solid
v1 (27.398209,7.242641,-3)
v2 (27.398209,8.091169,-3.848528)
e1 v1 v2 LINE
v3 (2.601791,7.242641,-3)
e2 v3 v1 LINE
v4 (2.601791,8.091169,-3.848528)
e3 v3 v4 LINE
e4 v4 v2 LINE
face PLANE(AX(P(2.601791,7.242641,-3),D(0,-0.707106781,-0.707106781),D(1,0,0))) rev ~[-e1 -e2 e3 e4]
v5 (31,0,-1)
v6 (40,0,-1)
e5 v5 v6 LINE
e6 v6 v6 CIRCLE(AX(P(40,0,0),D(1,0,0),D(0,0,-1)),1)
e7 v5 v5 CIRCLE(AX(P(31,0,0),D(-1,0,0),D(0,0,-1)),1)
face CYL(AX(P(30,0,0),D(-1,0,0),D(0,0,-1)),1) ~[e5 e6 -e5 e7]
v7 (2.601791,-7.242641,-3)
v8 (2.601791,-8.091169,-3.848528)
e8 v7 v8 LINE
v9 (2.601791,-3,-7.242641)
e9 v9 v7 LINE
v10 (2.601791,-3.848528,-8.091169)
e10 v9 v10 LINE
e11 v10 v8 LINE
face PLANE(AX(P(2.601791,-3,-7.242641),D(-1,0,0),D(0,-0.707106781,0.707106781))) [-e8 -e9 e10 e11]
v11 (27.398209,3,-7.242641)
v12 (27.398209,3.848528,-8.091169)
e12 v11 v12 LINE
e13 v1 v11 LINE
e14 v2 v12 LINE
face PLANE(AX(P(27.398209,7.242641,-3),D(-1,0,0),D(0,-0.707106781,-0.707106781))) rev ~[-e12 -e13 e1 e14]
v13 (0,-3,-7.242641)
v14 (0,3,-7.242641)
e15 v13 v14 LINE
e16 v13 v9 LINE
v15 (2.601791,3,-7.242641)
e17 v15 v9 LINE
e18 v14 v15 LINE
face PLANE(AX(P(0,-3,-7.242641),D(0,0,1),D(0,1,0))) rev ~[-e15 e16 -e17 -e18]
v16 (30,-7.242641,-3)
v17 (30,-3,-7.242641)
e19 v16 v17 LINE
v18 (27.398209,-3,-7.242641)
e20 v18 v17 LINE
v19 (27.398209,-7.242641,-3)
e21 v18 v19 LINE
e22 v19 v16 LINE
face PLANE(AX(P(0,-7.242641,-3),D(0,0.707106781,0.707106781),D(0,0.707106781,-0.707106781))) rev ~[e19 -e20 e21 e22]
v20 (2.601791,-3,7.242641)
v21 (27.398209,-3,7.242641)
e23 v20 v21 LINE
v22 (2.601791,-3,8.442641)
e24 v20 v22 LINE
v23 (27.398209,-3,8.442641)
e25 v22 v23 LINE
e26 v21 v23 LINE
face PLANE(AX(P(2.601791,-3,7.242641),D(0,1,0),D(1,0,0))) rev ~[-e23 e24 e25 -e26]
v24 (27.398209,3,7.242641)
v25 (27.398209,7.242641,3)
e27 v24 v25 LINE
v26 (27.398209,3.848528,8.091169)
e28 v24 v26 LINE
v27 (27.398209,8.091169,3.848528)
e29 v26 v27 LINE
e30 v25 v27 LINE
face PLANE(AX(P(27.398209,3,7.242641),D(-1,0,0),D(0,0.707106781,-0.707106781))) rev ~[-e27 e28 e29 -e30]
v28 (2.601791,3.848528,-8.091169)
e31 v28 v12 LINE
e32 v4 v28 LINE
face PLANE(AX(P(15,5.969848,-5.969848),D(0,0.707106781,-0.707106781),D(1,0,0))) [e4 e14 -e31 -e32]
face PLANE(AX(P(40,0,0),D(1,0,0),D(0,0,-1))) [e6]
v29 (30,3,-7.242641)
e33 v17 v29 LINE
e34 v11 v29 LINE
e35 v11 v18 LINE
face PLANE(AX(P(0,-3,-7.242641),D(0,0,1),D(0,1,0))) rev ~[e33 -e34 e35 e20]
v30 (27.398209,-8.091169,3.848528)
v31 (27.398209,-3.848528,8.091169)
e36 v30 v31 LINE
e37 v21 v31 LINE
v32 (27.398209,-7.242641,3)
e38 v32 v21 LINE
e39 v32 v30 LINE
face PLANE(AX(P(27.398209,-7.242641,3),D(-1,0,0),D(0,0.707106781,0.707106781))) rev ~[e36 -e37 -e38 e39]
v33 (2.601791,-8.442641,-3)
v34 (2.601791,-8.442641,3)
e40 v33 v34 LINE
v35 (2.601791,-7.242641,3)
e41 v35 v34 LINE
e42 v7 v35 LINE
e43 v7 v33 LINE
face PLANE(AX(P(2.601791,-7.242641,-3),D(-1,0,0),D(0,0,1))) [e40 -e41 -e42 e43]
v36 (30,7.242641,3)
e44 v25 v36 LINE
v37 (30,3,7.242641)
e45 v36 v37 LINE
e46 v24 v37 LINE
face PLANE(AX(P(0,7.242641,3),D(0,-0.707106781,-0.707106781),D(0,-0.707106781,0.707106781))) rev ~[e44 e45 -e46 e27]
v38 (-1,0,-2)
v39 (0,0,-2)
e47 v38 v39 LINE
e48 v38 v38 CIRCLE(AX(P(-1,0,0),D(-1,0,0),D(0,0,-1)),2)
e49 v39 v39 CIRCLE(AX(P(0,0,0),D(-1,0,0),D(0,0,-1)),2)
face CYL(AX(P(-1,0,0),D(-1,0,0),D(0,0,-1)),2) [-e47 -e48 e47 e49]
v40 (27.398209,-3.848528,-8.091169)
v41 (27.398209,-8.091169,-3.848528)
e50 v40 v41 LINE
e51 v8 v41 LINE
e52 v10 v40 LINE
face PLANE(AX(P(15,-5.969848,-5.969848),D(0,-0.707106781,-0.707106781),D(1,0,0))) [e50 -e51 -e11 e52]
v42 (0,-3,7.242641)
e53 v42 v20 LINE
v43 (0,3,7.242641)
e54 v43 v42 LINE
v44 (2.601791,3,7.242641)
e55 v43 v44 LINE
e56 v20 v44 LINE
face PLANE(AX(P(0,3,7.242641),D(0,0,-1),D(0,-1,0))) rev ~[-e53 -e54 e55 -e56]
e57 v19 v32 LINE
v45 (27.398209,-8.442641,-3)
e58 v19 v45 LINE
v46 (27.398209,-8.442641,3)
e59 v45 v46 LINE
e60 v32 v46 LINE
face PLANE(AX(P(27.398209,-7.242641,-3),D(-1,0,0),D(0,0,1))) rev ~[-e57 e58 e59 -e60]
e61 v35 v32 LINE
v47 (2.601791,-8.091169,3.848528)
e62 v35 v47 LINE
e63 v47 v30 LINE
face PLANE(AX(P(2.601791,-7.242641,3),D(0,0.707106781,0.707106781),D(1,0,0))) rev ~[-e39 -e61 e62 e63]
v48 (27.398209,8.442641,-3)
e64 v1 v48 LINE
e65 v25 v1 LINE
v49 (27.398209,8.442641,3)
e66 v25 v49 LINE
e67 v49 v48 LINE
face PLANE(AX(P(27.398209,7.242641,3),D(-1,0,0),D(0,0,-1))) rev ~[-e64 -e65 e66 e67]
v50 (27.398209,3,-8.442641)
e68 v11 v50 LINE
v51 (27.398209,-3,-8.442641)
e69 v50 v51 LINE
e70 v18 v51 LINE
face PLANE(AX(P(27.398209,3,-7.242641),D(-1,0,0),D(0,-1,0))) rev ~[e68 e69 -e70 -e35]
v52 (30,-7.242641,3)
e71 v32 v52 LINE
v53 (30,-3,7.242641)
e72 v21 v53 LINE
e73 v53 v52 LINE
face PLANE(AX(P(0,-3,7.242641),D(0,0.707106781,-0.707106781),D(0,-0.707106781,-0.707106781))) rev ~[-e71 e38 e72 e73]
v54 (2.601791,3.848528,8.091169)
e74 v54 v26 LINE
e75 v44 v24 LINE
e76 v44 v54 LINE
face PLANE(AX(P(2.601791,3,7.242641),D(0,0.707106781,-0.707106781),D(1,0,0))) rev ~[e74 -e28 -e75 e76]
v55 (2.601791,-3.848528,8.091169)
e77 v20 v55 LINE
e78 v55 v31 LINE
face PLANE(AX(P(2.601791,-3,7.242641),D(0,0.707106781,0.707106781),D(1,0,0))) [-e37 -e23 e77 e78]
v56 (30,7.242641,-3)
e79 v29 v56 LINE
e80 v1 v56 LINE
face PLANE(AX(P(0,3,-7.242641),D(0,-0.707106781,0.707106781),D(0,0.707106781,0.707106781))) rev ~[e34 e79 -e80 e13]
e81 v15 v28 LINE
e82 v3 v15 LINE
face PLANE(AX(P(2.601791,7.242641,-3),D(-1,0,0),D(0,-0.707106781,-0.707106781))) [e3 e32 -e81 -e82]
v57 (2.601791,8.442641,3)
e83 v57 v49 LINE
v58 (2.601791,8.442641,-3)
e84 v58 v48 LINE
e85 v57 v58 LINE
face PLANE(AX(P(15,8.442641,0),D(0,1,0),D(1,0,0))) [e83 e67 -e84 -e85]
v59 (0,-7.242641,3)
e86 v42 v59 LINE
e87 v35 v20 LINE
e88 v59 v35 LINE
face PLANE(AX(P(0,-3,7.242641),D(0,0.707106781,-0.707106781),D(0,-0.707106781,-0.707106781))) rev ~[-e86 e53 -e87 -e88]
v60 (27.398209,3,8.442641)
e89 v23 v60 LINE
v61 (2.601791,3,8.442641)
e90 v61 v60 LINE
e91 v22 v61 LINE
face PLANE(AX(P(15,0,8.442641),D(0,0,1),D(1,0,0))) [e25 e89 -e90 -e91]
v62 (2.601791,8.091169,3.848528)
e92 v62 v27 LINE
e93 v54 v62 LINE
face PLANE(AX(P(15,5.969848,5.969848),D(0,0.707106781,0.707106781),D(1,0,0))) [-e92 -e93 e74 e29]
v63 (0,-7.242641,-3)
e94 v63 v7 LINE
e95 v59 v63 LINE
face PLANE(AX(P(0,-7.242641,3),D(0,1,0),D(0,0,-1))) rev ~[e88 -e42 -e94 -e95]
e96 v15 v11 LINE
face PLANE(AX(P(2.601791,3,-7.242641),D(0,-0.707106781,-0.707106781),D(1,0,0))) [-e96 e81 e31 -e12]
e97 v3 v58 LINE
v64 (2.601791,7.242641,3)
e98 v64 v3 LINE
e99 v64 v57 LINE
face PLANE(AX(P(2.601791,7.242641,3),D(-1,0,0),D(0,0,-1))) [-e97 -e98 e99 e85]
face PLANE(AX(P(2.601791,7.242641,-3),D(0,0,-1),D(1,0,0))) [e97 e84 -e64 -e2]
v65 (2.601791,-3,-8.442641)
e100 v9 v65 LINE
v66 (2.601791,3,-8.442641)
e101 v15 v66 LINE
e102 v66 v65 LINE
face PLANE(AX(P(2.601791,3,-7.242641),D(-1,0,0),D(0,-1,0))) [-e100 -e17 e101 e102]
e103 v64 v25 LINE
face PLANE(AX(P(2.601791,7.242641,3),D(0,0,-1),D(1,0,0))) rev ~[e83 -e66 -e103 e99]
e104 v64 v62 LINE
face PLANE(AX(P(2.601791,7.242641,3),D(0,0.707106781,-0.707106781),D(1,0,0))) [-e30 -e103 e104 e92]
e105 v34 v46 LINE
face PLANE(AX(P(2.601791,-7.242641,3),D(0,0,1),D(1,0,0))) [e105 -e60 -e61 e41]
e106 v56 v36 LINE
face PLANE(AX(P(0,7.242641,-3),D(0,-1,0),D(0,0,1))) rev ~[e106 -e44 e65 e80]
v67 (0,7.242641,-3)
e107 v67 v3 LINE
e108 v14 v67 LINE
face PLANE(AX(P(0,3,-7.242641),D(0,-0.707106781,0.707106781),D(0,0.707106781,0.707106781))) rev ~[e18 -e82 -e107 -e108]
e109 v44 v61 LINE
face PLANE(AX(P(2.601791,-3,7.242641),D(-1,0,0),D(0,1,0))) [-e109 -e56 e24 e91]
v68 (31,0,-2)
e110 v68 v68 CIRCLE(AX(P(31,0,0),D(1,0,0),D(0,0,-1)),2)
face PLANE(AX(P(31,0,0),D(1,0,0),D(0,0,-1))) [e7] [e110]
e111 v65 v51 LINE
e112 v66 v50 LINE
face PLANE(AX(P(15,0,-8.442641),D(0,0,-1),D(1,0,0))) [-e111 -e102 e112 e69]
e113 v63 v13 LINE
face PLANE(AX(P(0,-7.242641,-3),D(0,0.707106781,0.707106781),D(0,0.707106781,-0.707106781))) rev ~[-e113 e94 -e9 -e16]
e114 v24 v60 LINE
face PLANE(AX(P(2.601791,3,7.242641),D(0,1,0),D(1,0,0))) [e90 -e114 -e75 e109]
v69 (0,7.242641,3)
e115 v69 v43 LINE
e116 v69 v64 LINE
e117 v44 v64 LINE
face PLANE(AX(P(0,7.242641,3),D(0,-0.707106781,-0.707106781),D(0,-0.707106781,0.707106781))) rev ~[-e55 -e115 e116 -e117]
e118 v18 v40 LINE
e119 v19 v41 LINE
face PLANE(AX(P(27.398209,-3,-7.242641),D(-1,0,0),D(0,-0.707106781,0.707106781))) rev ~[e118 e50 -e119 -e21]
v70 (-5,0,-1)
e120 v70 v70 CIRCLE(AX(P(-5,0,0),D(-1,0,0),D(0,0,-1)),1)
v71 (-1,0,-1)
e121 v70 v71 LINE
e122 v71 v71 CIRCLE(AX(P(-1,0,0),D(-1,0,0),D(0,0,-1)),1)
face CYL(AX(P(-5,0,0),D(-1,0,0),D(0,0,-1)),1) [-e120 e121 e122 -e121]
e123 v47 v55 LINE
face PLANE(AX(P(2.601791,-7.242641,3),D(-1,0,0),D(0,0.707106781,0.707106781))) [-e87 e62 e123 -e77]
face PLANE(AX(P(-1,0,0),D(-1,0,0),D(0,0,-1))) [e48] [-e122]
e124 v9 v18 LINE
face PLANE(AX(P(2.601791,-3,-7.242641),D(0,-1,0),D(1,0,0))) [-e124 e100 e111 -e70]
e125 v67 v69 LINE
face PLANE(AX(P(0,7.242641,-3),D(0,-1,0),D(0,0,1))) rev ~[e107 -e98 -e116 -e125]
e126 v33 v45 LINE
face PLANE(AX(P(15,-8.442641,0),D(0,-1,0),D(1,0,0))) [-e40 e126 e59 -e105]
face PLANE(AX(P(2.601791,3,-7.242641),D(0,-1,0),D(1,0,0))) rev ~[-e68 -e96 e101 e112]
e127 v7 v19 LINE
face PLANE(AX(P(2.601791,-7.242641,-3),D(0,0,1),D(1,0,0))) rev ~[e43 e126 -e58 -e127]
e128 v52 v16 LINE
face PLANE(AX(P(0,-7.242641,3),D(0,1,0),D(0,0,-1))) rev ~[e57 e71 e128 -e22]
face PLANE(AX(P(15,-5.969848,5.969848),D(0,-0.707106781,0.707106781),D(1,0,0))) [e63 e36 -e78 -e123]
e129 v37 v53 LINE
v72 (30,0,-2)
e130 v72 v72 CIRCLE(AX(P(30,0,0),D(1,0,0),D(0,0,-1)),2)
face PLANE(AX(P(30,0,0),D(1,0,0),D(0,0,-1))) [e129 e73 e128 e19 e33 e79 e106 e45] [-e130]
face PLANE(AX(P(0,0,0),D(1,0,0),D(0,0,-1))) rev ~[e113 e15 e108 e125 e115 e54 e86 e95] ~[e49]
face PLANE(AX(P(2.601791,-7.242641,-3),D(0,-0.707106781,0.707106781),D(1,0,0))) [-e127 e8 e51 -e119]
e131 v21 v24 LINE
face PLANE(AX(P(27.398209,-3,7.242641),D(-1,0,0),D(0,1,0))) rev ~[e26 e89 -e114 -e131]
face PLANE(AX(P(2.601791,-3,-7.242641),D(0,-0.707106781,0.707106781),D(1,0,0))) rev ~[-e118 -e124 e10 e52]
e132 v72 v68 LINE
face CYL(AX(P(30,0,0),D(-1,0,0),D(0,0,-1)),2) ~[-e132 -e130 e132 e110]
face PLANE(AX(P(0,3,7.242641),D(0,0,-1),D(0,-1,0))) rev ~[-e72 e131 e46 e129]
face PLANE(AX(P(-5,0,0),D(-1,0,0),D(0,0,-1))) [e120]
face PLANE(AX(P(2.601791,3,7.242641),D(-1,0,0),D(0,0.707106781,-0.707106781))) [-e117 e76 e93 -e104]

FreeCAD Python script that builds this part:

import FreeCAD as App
import Part
import Sketcher

V = App.Vector
Q = App.Units.Quantity


def add_polygon(sketch, points):
    """Adds a closed chain of lines whose ends are joined by coincident constraints."""
    first, n = sketch.GeometryCount, len(points)
    for a, b in zip(points, points[1:] + points[:1]):
        sketch.addGeometry(Part.LineSegment(App.Vector(*a, 0), App.Vector(*b, 0)), False)
    for i in range(n):
        sketch.addConstraint(Sketcher.Constraint("Coincident", first + i, 2, first + (i + 1) % n, 1))

doc = App.newDocument("Part")
params = doc.addObject("Spreadsheet::Sheet", "Params")
for row, (alias, value) in enumerate([
    ("sketch1_width", "6 mm"),
    ("sketch1_length", "6 mm"),
    ("pad1_length", "30 mm"),
    ("sketch2_diameter", "2 mm"),
    ("pad2_length", "10 mm"),
    ("sketch3_diameter", "4 mm"),
    ("pad3_length", "1 mm"),
    ("sketch4_diameter", "2 mm"),
    ("pad4_length", "5 mm"),
    ("sketch5_diameter", "4 mm"),
    ("pad5_length", "1 mm"),
    ("sketch6_height", "6 mm"),
    ("pad6_length", "1.2 mm"),
], start=1):
    params.set(f"A{row}", alias)
    params.set(f"B{row}", "=" + value)
    params.setAlias(f"B{row}", alias)

body = doc.addObject("PartDesign::Body", "Body")

# Sketch on YZ plane
sketch1 = body.newObject("Sketcher::SketchObject", "Sketch")
sketch1.AttachmentSupport = (doc.getObject("YZ_Plane"), [""])
sketch1.MapMode = "FlatFace"
add_polygon(sketch1, [(-3, -7), (3, -7), (7, -3), (7, 3), (3, 7), (-3, 7), (-7, 3), (-7, -3)])  # lines 0-7
sketch1.addConstraint(Sketcher.Constraint("Horizontal", 0))
sketch1.addConstraint(Sketcher.Constraint("Vertical", 2))
sketch1.addConstraint(Sketcher.Constraint("Horizontal", 4))
sketch1.addConstraint(Sketcher.Constraint("Vertical", 6))
sketch1.addConstraint(Sketcher.Constraint("Symmetric", 0, 2, 4, 2, -1, 1))
sketch1.addConstraint(Sketcher.Constraint("Symmetric", 1, 2, 5, 2, -1, 1))
sketch1.addConstraint(Sketcher.Constraint("Perpendicular", 1, 3))
sketch1.addConstraint(Sketcher.Constraint("Perpendicular", 5, 7))
sketch1.addConstraint(Sketcher.Constraint("Horizontal", 2, 2, 5, 2))
sketch1.addConstraint(Sketcher.Constraint("Horizontal", 1, 2, 6, 2))
sketch1.addConstraint(Sketcher.Constraint("Vertical", 0, 2, 3, 2))
sketch1.addConstraint(Sketcher.Constraint("Equal", 4, 2))
sketch1.addConstraint(Sketcher.Constraint("DistanceX", 0, 1, 0, 2, Q("6 mm")))
sketch1.addConstraint(Sketcher.Constraint("Distance", 1, Q("6 mm")))
sketch1.setExpression("Constraints[20]", "Params.sketch1_width")
sketch1.setExpression("Constraints[21]", "Params.sketch1_length")
pad1 = body.newObject("PartDesign::Pad", "Pad")
pad1.Profile = sketch1
pad1.setExpression("Length", "Params.pad1_length")

# Sketch on YZ plane
sketch2 = body.newObject("Sketcher::SketchObject", "Sketch001")
sketch2.AttachmentSupport = (doc.getObject("YZ_Plane"), [""])
sketch2.MapMode = "FlatFace"
sketch2.AttachmentOffset = App.Placement(V(0, 0, 30), App.Rotation())
sketch2.addGeometry(Part.Circle(V(0, 0, 0), V(0, 0, 1), 1), False)
sketch2.addConstraint(Sketcher.Constraint("Coincident", 0, 3, -1, 1))
sketch2.addConstraint(Sketcher.Constraint("Diameter", 0, Q("2 mm")))
sketch2.setExpression("Constraints[1]", "Params.sketch2_diameter")
pad2 = body.newObject("PartDesign::Pad", "Pad001")
pad2.Profile = sketch2
pad2.setExpression("Length", "Params.pad2_length")

# Sketch on YZ plane
sketch3 = body.newObject("Sketcher::SketchObject", "Sketch002")
sketch3.AttachmentSupport = (doc.getObject("YZ_Plane"), [""])
sketch3.MapMode = "FlatFace"
sketch3.AttachmentOffset = App.Placement(V(0, 0, 30), App.Rotation())
sketch3.addGeometry(Part.Circle(V(0, 0, 0), V(0, 0, 1), 2), False)
sketch3.addConstraint(Sketcher.Constraint("Coincident", 0, 3, -1, 1))
sketch3.addConstraint(Sketcher.Constraint("Diameter", 0, Q("4 mm")))
sketch3.setExpression("Constraints[1]", "Params.sketch3_diameter")
pad3 = body.newObject("PartDesign::Pad", "Pad002")
pad3.Profile = sketch3
pad3.setExpression("Length", "Params.pad3_length")

# Sketch on YZ plane
sketch4 = body.newObject("Sketcher::SketchObject", "Sketch003")
sketch4.AttachmentSupport = (doc.getObject("YZ_Plane"), [""])
sketch4.MapMode = "FlatFace"
sketch4.AttachmentOffset = App.Placement(V(0, 0, -5), App.Rotation())
sketch4.addGeometry(Part.Circle(V(0, 0, 0), V(0, 0, 1), 1), False)
sketch4.addConstraint(Sketcher.Constraint("Coincident", 0, 3, -1, 1))
sketch4.addConstraint(Sketcher.Constraint("Diameter", 0, Q("2 mm")))
sketch4.setExpression("Constraints[1]", "Params.sketch4_diameter")
pad4 = body.newObject("PartDesign::Pad", "Pad003")
pad4.Profile = sketch4
pad4.setExpression("Length", "Params.pad4_length")

# Sketch on YZ plane
sketch5 = body.newObject("Sketcher::SketchObject", "Sketch004")
sketch5.AttachmentSupport = (doc.getObject("YZ_Plane"), [""])
sketch5.MapMode = "FlatFace"
sketch5.AttachmentOffset = App.Placement(V(0, 0, -1), App.Rotation())
sketch5.addGeometry(Part.Circle(V(0, 0, 0), V(0, 0, 1), 2), False)
sketch5.addConstraint(Sketcher.Constraint("Coincident", 0, 3, -1, 1))
sketch5.addConstraint(Sketcher.Constraint("Diameter", 0, Q("4 mm")))
sketch5.setExpression("Constraints[1]", "Params.sketch5_diameter")
pad5 = body.newObject("PartDesign::Pad", "Pad004")
pad5.Profile = sketch5
pad5.setExpression("Length", "Params.pad5_length")

# Sketch on XZ plane
sketch6 = body.newObject("Sketcher::SketchObject", "Sketch005")
sketch6.AttachmentSupport = (doc.getObject("XZ_Plane"), [""])
sketch6.MapMode = "FlatFace"
sketch6.AttachmentOffset = App.Placement(V(0, 0, -7.242641), App.Rotation())
add_polygon(sketch6, [(3, -3), (3, 3), (27, 3), (27, -3)])  # lines 0-3
sketch6.addConstraint(Sketcher.Constraint("Vertical", 0))
sketch6.addConstraint(Sketcher.Constraint("Horizontal", 1))
sketch6.addConstraint(Sketcher.Constraint("Vertical", 2))
sketch6.addConstraint(Sketcher.Constraint("Horizontal", 3))
sketch6.addConstraint(Sketcher.Constraint("DistanceY", 0, 1, 0, 2, Q("6 mm")))
sketch6.addConstraint(Sketcher.Constraint("DistanceY", -1, 1, 0, 2, Q("3 mm")))
sketch6.addConstraint(Sketcher.Constraint("DistanceX", 1, 1, 1, 2, Q("24.796417 mm")))
sketch6.addConstraint(Sketcher.Constraint("DistanceX", -1, 1, 0, 2, Q("2.601791 mm")))
sketch6.setExpression("Constraints[8]", "Params.sketch6_height")
pad6 = body.newObject("PartDesign::Pad", "Pad005")
pad6.Profile = sketch6
pad6.setExpression("Length", "Params.pad6_length")
pad6.Reversed = True
doc.recompute()

polarpattern = body.newObject("PartDesign::PolarPattern", "PolarPattern")
polarpattern.Originals = [pad6]
polarpattern.Axis = (doc.getObject("X_Axis"), [""])
polarpattern.Angle = 360
polarpattern.Occurrences = 8
body.Tip = polarpattern

doc.recompute()
